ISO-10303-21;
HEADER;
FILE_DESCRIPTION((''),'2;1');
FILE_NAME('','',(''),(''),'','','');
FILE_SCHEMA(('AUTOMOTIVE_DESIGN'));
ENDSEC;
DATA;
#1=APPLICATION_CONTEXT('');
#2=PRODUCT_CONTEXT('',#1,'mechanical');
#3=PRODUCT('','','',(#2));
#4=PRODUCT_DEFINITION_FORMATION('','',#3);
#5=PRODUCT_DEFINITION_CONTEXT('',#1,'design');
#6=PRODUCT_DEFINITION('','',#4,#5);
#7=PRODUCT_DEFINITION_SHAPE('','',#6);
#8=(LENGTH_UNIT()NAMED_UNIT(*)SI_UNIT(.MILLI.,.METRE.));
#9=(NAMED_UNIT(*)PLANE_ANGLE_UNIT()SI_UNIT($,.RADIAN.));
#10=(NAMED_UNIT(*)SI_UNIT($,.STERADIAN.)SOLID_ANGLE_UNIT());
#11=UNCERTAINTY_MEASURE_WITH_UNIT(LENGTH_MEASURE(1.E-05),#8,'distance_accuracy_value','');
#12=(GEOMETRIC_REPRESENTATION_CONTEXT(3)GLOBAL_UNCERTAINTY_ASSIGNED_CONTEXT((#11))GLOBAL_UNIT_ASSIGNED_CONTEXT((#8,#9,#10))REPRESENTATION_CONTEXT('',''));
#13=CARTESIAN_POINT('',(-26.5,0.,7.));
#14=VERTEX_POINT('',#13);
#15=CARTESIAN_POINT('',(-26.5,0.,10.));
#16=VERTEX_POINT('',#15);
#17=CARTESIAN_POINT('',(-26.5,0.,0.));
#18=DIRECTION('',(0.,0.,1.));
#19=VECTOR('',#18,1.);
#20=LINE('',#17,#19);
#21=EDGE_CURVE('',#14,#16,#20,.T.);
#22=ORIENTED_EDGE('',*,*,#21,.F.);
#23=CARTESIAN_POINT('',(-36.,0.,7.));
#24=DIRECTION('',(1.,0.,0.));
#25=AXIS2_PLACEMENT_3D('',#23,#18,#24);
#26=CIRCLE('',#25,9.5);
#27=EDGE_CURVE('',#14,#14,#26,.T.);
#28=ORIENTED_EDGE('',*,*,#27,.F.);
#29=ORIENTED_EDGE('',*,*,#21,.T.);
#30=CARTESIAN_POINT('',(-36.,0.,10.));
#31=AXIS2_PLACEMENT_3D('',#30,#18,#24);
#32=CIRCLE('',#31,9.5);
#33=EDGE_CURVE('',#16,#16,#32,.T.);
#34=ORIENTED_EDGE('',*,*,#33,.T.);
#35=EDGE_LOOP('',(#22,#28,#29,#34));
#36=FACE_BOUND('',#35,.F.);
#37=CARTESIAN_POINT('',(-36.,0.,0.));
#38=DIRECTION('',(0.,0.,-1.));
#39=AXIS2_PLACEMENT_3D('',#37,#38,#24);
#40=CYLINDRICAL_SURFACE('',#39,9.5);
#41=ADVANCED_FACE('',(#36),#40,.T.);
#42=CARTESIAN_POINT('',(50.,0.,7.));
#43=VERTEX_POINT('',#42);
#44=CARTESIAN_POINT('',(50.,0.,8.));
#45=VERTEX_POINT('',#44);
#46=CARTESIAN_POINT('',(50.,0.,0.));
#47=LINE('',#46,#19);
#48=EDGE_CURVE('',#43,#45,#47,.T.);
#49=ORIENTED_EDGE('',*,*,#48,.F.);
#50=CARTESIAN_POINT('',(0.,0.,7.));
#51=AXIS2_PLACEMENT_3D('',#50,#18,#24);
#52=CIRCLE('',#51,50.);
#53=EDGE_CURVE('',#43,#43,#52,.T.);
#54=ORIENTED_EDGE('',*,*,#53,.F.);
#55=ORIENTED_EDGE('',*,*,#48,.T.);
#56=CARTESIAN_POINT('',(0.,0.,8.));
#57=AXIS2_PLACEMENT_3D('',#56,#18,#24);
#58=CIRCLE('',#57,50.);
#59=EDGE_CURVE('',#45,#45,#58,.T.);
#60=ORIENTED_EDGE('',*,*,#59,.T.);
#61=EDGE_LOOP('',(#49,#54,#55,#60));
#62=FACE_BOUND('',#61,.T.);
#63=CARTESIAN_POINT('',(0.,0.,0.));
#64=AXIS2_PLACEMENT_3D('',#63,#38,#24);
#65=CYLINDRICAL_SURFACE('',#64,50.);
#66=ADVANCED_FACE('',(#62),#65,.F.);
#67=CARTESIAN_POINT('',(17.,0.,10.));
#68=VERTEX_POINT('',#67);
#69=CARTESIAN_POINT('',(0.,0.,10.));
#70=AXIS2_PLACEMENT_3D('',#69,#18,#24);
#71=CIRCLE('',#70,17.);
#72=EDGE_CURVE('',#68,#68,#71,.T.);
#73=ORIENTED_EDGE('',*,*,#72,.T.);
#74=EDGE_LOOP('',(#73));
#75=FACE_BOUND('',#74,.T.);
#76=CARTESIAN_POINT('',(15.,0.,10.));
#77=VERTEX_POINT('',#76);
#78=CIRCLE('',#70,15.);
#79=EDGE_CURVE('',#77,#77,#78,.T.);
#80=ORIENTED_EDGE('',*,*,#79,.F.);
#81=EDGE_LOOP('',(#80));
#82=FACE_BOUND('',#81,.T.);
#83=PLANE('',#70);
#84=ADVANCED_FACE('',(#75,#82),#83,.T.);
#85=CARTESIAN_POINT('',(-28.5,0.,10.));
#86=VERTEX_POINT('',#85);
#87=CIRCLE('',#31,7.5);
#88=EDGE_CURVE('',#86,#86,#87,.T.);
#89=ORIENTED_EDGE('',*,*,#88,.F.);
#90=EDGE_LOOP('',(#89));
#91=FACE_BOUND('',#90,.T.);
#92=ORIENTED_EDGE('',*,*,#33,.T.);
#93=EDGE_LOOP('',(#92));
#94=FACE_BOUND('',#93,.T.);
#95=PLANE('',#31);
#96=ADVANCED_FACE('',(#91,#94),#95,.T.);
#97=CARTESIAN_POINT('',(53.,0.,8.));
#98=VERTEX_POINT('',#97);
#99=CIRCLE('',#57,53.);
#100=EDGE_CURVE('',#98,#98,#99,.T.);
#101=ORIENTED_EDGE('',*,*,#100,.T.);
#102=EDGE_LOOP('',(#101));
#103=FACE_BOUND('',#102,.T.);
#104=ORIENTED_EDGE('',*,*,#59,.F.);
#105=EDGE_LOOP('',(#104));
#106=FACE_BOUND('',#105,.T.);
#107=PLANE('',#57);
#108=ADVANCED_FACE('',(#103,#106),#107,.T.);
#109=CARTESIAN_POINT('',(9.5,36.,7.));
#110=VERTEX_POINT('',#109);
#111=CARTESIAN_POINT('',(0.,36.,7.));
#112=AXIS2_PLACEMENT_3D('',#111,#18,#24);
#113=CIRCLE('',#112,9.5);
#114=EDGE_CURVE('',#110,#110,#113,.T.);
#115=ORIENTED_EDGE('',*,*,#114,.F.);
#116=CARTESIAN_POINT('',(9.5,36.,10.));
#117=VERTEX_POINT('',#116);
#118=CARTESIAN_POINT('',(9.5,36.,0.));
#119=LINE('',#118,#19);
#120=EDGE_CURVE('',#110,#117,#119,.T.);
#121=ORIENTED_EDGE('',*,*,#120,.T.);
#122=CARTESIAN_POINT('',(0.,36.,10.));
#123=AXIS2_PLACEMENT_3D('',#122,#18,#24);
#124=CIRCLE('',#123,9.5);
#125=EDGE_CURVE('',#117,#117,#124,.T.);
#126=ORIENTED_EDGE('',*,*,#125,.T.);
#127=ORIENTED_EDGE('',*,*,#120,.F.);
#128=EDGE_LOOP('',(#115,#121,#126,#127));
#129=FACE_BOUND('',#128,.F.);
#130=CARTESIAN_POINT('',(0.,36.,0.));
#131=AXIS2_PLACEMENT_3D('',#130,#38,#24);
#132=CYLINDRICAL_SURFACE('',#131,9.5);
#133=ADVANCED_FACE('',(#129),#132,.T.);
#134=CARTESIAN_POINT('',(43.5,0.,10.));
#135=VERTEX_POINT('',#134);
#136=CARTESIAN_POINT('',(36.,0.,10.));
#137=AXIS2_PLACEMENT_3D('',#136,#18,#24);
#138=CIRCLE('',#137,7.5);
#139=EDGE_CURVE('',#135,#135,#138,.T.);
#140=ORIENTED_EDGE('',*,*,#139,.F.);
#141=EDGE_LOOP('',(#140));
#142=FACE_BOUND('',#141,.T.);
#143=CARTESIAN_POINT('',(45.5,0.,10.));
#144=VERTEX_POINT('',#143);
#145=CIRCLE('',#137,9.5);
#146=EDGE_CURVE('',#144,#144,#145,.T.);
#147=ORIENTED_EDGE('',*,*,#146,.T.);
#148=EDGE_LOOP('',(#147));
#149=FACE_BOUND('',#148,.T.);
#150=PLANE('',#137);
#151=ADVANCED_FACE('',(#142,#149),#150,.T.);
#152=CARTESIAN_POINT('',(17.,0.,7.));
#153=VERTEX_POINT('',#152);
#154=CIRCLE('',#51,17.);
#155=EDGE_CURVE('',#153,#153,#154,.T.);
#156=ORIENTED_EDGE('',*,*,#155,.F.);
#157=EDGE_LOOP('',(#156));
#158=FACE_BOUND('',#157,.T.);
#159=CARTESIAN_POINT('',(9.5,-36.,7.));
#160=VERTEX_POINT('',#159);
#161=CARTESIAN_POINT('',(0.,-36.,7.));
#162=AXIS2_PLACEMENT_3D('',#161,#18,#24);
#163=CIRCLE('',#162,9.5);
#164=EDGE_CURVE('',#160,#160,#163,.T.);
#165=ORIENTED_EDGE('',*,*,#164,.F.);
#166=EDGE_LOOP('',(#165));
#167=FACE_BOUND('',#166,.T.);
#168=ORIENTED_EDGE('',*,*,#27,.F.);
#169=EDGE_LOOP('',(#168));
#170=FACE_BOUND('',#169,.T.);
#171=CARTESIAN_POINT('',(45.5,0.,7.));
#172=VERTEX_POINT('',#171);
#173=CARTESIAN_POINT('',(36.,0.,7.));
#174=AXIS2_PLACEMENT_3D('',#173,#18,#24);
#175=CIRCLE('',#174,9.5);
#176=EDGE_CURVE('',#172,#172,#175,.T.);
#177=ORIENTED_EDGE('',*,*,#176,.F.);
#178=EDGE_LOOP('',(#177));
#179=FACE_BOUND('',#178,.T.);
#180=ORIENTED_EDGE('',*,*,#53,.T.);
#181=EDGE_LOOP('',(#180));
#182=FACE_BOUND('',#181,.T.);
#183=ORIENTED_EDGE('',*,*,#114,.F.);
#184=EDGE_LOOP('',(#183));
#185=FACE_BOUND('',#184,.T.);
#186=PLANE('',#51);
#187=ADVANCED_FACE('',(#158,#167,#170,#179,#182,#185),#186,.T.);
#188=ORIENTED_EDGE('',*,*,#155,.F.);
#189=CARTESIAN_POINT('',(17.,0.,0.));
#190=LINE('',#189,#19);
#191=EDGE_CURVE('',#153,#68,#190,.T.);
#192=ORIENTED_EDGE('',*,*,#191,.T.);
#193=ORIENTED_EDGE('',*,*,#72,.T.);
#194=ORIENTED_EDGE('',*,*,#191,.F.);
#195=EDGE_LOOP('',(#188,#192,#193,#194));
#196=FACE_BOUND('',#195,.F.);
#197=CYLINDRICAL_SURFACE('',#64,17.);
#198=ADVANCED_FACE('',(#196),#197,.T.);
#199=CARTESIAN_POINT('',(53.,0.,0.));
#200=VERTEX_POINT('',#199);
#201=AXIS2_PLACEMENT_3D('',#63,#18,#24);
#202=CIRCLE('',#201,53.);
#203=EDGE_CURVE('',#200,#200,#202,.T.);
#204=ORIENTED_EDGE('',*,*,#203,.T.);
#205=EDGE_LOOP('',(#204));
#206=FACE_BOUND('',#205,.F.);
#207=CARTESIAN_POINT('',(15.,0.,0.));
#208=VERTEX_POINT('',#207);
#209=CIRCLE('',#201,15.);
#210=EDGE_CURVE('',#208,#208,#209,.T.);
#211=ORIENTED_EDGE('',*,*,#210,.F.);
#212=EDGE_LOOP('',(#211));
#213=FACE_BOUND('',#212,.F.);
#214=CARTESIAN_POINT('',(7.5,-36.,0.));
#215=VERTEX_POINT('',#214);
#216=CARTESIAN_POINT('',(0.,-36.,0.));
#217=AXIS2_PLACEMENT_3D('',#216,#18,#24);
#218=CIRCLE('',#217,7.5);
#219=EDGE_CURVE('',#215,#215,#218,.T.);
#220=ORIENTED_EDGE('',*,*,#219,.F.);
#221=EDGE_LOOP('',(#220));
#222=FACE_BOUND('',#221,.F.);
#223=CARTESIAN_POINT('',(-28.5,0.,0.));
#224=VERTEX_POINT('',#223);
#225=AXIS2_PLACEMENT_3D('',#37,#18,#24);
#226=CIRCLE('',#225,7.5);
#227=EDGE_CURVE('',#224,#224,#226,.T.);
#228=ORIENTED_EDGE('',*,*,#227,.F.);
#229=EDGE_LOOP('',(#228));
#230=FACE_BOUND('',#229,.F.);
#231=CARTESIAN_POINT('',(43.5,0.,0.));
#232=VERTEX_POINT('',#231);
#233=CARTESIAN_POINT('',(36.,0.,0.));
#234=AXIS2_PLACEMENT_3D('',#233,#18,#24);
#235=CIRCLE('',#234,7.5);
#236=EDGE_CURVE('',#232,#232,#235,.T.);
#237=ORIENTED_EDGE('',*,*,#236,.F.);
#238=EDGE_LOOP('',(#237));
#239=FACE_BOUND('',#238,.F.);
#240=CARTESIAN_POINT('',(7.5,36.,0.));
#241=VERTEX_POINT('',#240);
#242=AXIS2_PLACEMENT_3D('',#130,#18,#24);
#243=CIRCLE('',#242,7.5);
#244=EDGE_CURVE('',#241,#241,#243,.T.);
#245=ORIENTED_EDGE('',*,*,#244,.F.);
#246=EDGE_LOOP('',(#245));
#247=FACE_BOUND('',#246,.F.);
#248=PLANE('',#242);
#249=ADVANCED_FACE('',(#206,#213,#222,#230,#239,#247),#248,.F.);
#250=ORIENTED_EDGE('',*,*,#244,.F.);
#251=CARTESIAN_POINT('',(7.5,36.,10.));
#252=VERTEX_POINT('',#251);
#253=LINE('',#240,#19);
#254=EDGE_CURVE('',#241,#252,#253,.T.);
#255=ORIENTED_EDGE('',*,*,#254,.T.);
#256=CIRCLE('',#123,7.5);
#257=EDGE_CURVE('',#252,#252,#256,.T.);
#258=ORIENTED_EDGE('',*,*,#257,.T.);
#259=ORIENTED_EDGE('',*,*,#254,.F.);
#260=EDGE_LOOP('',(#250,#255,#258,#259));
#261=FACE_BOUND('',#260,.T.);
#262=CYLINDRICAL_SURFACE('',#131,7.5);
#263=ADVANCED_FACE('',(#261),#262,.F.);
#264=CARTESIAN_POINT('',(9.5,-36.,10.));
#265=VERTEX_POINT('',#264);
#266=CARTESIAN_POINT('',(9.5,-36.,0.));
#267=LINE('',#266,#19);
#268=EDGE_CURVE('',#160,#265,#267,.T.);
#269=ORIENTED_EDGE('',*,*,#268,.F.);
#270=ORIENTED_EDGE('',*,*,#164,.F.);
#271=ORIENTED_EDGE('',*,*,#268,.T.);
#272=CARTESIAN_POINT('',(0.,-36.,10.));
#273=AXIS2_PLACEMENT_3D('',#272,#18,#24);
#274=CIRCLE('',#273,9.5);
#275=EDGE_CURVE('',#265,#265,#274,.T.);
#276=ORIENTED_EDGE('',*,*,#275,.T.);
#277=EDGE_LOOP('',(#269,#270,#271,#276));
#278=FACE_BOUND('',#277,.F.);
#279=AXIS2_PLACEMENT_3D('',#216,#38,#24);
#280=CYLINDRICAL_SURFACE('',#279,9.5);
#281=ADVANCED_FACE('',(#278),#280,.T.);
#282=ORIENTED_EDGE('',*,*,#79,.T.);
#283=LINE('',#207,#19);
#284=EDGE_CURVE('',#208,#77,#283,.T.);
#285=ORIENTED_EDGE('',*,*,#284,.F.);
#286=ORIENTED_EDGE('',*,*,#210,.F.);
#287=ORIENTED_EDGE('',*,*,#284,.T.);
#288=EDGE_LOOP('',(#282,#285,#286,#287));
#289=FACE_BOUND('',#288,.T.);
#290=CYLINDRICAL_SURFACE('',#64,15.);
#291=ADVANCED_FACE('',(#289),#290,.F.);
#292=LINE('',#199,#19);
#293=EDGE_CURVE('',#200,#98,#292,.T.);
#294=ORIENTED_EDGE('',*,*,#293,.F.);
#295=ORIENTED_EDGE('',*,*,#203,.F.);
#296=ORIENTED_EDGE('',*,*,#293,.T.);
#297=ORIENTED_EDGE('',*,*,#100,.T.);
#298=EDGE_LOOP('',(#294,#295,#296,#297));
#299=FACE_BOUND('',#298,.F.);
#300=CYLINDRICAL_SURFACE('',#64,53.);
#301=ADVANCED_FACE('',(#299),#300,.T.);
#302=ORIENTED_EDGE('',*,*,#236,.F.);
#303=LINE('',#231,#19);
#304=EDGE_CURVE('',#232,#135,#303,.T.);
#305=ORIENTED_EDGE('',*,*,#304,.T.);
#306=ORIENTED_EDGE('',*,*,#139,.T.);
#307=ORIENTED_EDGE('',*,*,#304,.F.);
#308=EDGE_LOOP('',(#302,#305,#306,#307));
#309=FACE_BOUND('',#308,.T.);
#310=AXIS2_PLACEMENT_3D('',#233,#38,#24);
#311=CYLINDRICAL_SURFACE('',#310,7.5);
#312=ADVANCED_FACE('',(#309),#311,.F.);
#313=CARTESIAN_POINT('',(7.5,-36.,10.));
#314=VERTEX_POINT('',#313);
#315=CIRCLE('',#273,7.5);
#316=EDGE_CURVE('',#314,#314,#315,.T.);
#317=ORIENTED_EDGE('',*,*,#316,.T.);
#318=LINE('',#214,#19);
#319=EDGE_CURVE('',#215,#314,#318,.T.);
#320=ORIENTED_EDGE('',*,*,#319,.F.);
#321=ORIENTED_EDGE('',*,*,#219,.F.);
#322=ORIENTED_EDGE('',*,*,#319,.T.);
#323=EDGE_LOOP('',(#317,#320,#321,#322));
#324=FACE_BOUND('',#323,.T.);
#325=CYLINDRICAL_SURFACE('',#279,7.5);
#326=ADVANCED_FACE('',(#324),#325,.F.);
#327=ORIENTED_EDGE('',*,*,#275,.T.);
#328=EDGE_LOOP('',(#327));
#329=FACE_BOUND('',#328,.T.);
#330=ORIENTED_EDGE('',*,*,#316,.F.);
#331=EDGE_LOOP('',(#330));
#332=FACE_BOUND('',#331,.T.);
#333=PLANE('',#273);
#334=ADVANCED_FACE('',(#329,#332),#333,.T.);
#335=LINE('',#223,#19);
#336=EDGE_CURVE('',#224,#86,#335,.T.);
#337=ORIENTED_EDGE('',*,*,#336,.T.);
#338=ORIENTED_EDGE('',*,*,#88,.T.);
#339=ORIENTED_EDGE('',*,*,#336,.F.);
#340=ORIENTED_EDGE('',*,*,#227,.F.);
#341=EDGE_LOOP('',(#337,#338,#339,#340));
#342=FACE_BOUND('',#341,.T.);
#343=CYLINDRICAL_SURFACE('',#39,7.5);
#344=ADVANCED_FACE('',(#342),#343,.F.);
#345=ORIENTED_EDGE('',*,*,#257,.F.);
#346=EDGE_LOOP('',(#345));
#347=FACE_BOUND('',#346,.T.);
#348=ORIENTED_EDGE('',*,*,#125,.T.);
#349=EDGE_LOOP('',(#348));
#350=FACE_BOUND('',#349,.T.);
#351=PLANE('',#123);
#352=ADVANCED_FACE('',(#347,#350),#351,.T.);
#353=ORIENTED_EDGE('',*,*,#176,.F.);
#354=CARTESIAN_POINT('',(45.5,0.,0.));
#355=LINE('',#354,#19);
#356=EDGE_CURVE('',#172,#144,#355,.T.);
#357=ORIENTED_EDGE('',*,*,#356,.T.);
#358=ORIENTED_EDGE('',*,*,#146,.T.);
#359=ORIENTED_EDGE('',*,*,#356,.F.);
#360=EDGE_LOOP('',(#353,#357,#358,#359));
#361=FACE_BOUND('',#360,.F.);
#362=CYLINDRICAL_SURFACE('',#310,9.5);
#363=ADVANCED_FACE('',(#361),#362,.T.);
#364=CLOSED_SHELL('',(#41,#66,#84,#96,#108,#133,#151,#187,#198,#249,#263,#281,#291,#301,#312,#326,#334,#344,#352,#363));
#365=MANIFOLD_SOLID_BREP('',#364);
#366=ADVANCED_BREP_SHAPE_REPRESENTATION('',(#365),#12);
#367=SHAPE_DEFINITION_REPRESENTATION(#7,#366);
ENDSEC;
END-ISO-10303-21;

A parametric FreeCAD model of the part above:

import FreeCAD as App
import Part
import Sketcher

V = App.Vector
Q = App.Units.Quantity

doc = App.newDocument("Part")
params = doc.addObject("Spreadsheet::Sheet", "Params")
for row, (alias, value) in enumerate([
    ("sketch1_diameter", "100 mm"),
    ("sketch1_diameter2", "19 mm"),
    ("sketch1_diameter3", "34 mm"),
    ("pad1_length", "7 mm"),
    ("sketch2_diameter", "106 mm"),
    ("sketch2_diameter2", "100 mm"),
    ("pad2_length", "8 mm"),
    ("sketch3_diameter", "19 mm"),
    ("sketch3_diameter2", "15 mm"),
    ("sketch3_diameter3", "34 mm"),
    ("sketch3_diameter4", "30 mm"),
    ("pad3_length", "10 mm"),
], start=1):
    params.set(f"A{row}", alias)
    params.set(f"B{row}", "=" + value)
    params.setAlias(f"B{row}", alias)

body = doc.addObject("PartDesign::Body", "Body")

# Sketch on XY plane
sketch1 = body.newObject("Sketcher::SketchObject", "Sketch")
sketch1.AttachmentSupport = (doc.getObject("XY_Plane"), [""])
sketch1.MapMode = "FlatFace"
sketch1.addGeometry([
    Part.Circle(V(0, 0, 0), V(0, 0, 1), 50),  # 0
    Part.Circle(V(0, -36, 0), V(0, 0, 1), 10),  # 1
    Part.Circle(V(-36, 0, 0), V(0, 0, 1), 10),  # 2
    Part.Circle(V(0, 0, 0), V(0, 0, 1), 17),  # 3
    Part.Circle(V(36, 0, 0), V(0, 0, 1), 10),  # 4
    Part.Circle(V(0, 36, 0), V(0, 0, 1), 10),  # 5
], False)
sketch1.addConstraint([
    Sketcher.Constraint("Coincident", 0, 3, -1, 1),
    Sketcher.Constraint("Coincident", 3, 3, -1, 1),
    Sketcher.Constraint("Equal", 1, 2),
    Sketcher.Constraint("Equal", 2, 4),
    Sketcher.Constraint("Equal", 4, 5),
    Sketcher.Constraint("Symmetric", 2, 3, 4, 3, -1, 1),
    Sketcher.Constraint("Symmetric", 1, 3, 5, 3, -1, 1),
    Sketcher.Constraint("PointOnObject", 1, 3, -2),
    Sketcher.Constraint("PointOnObject", 2, 3, -1),
    Sketcher.Constraint("Diameter", 0, Q("100 mm")),
    Sketcher.Constraint("Diameter", 1, Q("19 mm")),
    Sketcher.Constraint("Diameter", 3, Q("34 mm")),
    Sketcher.Constraint("DistanceY", 1, 3, -1, 1, Q("36 mm")),
    Sketcher.Constraint("DistanceX", 2, 3, -1, 1, Q("36 mm")),
])
sketch1.setExpression("Constraints[9]", "Params.sketch1_diameter")
sketch1.setExpression("Constraints[10]", "Params.sketch1_diameter2")
sketch1.setExpression("Constraints[11]", "Params.sketch1_diameter3")
pad1 = body.newObject("PartDesign::Pad", "Pad")
pad1.Profile = sketch1
pad1.setExpression("Length", "Params.pad1_length")

# Sketch on XY plane
sketch2 = body.newObject("Sketcher::SketchObject", "Sketch001")
sketch2.AttachmentSupport = (doc.getObject("XY_Plane"), [""])
sketch2.MapMode = "FlatFace"
sketch2.addGeometry([
    Part.Circle(V(0, 0, 0), V(0, 0, 1), 53),
    Part.Circle(V(0, 0, 0), V(0, 0, 1), 50),
], False)
sketch2.addConstraint([
    Sketcher.Constraint("Coincident", 0, 3, -1, 1),
    Sketcher.Constraint("Coincident", 1, 3, -1, 1),
    Sketcher.Constraint("Diameter", 0, Q("106 mm")),
    Sketcher.Constraint("Diameter", 1, Q("100 mm")),
])
sketch2.setExpression("Constraints[2]", "Params.sketch2_diameter")
sketch2.setExpression("Constraints[3]", "Params.sketch2_diameter2")
pad2 = body.newObject("PartDesign::Pad", "Pad001")
pad2.Profile = sketch2
pad2.setExpression("Length", "Params.pad2_length")

# Sketch on XY plane
sketch3 = body.newObject("Sketcher::SketchObject", "Sketch002")
sketch3.AttachmentSupport = (doc.getObject("XY_Plane"), [""])
sketch3.MapMode = "FlatFace"
sketch3.addGeometry([
    Part.Circle(V(0, 36, 0), V(0, 0, 1), 10),  # 0
    Part.Circle(V(0, 36, 0), V(0, 0, 1), 8),  # 1
    Part.Circle(V(-36, 0, 0), V(0, 0, 1), 10),  # 2
    Part.Circle(V(-36, 0, 0), V(0, 0, 1), 8),  # 3
    Part.Circle(V(36, 0, 0), V(0, 0, 1), 10),  # 4
    Part.Circle(V(36, 0, 0), V(0, 0, 1), 8),  # 5
    Part.Circle(V(0, -36, 0), V(0, 0, 1), 10),  # 6
    Part.Circle(V(0, -36, 0), V(0, 0, 1), 8),  # 7
    Part.Circle(V(0, 0, 0), V(0, 0, 1), 17),  # 8
    Part.Circle(V(0, 0, 0), V(0, 0, 1), 15),  # 9
], False)
sketch3.addConstraint([
    Sketcher.Constraint("Coincident", 8, 3, -1, 1),
    Sketcher.Constraint("Coincident", 9, 3, -1, 1),
    Sketcher.Constraint("Coincident", 1, 3, 0, 3),
    Sketcher.Constraint("Coincident", 3, 3, 2, 3),
    Sketcher.Constraint("Coincident", 5, 3, 4, 3),
    Sketcher.Constraint("Coincident", 7, 3, 6, 3),
    Sketcher.Constraint("Equal", 0, 2),
    Sketcher.Constraint("Equal", 1, 3),
    Sketcher.Constraint("Equal", 2, 4),
    Sketcher.Constraint("Equal", 3, 5),
    Sketcher.Constraint("Equal", 4, 6),
    Sketcher.Constraint("Equal", 5, 7),
    Sketcher.Constraint("Symmetric", 2, 3, 4, 3, -1, 1),
    Sketcher.Constraint("Symmetric", 0, 3, 6, 3, -1, 1),
    Sketcher.Constraint("PointOnObject", 0, 3, -2),
    Sketcher.Constraint("PointOnObject", 2, 3, -1),
    Sketcher.Constraint("Diameter", 0, Q("19 mm")),
    Sketcher.Constraint("Diameter", 1, Q("15 mm")),
    Sketcher.Constraint("Diameter", 8, Q("34 mm")),
    Sketcher.Constraint("Diameter", 9, Q("30 mm")),
    Sketcher.Constraint("DistanceY", -1, 1, 0, 3, Q("36 mm")),
    Sketcher.Constraint("DistanceX", 2, 3, -1, 1, Q("36 mm")),
])
sketch3.setExpression("Constraints[16]", "Params.sketch3_diameter")
sketch3.setExpression("Constraints[17]", "Params.sketch3_diameter2")
sketch3.setExpression("Constraints[18]", "Params.sketch3_diameter3")
sketch3.setExpression("Constraints[19]", "Params.sketch3_diameter4")
pad3 = body.newObject("PartDesign::Pad", "Pad002")
pad3.Profile = sketch3
pad3.setExpression("Length", "Params.pad3_length")

doc.recompute()
